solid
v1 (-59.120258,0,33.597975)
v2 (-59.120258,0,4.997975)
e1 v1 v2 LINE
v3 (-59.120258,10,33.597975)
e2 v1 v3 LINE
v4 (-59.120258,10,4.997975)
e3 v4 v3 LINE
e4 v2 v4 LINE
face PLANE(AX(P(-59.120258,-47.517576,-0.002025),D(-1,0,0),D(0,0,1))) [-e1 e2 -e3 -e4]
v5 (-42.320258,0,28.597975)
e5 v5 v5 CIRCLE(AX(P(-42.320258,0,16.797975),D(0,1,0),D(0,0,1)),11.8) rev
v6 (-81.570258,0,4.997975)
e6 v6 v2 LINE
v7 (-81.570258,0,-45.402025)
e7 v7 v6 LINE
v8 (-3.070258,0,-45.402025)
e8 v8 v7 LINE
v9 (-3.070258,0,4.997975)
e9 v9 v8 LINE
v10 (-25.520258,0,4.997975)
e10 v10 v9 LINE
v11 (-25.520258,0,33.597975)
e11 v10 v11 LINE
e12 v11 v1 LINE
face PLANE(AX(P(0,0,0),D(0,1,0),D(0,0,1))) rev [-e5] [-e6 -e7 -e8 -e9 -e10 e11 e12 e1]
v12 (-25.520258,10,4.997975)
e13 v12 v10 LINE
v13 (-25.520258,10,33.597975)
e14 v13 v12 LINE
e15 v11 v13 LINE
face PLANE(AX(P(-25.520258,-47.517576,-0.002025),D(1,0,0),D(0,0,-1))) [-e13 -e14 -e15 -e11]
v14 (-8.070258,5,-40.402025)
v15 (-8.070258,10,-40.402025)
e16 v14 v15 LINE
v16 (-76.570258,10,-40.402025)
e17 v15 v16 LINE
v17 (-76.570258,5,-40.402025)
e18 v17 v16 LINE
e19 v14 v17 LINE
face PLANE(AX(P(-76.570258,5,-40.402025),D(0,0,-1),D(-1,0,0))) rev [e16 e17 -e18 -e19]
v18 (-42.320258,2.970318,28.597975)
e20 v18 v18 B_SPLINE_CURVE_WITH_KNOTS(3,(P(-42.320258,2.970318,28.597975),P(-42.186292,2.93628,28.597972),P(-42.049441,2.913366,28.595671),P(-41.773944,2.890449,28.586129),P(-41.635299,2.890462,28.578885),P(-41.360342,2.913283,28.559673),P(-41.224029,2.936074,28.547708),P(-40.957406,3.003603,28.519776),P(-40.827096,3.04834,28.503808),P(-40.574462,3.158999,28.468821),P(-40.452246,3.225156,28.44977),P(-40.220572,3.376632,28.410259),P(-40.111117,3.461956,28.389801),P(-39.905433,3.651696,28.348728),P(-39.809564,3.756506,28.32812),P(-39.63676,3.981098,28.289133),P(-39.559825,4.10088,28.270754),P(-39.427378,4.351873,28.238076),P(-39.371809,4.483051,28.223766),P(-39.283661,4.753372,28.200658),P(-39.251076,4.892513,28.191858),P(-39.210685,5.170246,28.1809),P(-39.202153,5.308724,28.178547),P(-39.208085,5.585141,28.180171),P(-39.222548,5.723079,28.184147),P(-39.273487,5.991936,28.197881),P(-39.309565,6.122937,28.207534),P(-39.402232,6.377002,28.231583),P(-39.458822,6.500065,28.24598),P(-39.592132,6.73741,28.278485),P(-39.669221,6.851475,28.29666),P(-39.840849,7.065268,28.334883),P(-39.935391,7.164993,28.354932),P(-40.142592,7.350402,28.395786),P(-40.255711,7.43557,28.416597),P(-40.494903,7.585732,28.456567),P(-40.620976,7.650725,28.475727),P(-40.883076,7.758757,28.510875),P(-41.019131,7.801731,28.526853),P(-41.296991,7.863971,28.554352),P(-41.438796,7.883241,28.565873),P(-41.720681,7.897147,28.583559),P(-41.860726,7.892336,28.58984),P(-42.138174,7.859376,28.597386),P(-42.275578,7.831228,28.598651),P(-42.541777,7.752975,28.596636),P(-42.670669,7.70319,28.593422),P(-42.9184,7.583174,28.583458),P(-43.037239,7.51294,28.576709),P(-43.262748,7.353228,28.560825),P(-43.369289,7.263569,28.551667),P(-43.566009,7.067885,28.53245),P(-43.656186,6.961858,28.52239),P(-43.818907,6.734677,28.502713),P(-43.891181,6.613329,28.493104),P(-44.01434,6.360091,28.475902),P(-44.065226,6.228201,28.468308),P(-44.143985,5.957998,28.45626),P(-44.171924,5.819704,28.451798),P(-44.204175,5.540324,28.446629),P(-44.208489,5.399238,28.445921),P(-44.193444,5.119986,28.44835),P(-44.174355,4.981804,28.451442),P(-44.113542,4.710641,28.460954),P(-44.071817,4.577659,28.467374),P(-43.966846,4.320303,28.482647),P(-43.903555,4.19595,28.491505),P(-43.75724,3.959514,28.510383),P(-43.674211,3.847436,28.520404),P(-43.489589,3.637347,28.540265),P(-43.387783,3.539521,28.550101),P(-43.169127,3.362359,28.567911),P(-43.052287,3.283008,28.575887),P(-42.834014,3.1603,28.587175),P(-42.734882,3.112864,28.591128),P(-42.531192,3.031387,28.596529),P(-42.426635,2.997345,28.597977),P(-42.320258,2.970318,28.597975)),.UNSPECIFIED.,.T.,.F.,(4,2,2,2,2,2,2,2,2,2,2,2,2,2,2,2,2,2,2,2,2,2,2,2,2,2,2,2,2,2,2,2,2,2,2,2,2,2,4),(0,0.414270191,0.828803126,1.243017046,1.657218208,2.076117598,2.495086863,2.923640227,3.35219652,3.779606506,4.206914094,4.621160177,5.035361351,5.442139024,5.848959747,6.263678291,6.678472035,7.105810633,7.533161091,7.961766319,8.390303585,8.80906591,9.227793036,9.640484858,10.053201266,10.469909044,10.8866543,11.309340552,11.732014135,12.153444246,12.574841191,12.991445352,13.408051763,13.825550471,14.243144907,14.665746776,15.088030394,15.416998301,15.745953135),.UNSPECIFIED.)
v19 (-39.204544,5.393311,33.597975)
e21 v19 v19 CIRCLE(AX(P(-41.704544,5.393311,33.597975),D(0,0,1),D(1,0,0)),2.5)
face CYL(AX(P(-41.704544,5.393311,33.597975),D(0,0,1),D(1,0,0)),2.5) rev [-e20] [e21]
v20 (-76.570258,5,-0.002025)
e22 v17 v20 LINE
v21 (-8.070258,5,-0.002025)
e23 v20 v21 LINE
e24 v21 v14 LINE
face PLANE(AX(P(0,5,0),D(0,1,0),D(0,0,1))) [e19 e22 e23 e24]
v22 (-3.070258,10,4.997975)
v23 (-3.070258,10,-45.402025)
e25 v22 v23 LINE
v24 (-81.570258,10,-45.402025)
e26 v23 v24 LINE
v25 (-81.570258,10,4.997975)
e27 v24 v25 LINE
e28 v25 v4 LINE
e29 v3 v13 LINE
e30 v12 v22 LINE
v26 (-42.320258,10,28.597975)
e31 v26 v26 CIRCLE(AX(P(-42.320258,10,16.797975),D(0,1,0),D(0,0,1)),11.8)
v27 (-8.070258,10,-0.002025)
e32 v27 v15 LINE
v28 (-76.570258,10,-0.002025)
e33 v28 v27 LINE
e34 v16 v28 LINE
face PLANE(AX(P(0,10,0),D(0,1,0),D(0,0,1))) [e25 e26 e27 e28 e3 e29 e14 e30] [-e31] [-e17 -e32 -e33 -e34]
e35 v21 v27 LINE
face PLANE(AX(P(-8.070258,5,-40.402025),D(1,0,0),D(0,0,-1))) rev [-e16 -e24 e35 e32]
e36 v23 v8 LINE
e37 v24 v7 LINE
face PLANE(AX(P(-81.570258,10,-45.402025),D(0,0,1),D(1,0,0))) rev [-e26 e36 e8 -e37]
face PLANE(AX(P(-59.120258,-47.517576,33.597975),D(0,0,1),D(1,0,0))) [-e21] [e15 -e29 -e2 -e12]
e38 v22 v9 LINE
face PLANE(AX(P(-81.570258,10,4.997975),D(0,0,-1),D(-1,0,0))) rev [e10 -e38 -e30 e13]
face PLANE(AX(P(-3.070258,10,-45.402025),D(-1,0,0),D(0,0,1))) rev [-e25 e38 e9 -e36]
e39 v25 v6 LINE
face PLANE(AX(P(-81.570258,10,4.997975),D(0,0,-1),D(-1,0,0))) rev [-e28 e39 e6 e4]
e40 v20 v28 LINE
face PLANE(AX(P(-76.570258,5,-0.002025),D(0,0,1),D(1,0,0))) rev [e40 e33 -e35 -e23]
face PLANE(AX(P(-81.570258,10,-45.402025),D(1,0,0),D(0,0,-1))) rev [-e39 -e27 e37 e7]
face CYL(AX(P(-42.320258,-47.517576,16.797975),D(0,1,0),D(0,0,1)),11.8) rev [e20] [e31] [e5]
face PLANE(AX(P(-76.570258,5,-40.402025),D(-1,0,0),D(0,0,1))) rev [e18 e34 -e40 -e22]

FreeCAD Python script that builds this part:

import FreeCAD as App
import Part
import Sketcher

V = App.Vector

doc = App.newDocument("Part")
params = doc.addObject("Spreadsheet::Sheet", "Params")
for row, (alias, value) in enumerate([
    ("sketch1_width", "78.5 mm"),
    ("sketch1_height", "50.4 mm"),
    ("pad1_length", "10 mm"),
    ("sketch2_width", "68.5 mm"),
    ("sketch2_height", "40.4 mm"),
    ("pocket1_length", "5 mm"),
    ("sketch3_diameter", "23.6 mm"),
    ("sketch3_width", "33.6 mm"),
    ("pad2_length", "10 mm"),
    ("sketch4_diameter", "5 mm"),
], start=1):
    params.set(f"A{row}", alias)
    params.set(f"B{row}", "=" + value)
    params.setAlias(f"B{row}", alias)

body = doc.addObject("PartDesign::Body", "Body")

sketch1 = body.newObject("Sketcher::SketchObject", "Sketch")
sketch1.AttachmentSupport = (doc.getObject("XZ_Plane"), [""])
sketch1.MapMode = "FlatFace"
sketch1.addGeometry(Part.LineSegment(V(-82, -45, 0), V(-82, 5, 0)), False)
sketch1.addGeometry(Part.LineSegment(V(-82, 5, 0), V(-3, 5, 0)), False)
sketch1.addGeometry(Part.LineSegment(V(-3, 5, 0), V(-3, -45, 0)), False)
sketch1.addGeometry(Part.LineSegment(V(-3, -45, 0), V(-82, -45, 0)), False)
sketch1.addConstraint(Sketcher.Constraint("Coincident", 0, 2, 1, 1))
sketch1.addConstraint(Sketcher.Constraint("Coincident", 1, 2, 2, 1))
sketch1.addConstraint(Sketcher.Constraint("Coincident", 2, 2, 3, 1))
sketch1.addConstraint(Sketcher.Constraint("Coincident", 3, 2, 0, 1))
sketch1.addConstraint(Sketcher.Constraint("Vertical", 0))
sketch1.addConstraint(Sketcher.Constraint("Horizontal", 1))
sketch1.addConstraint(Sketcher.Constraint("Vertical", 2))
sketch1.addConstraint(Sketcher.Constraint("Horizontal", 3))
sketch1.addConstraint(Sketcher.Constraint("DistanceX", 1, 1, 1, 2, 78.5))
sketch1.addConstraint(Sketcher.Constraint("DistanceY", 0, 1, 0, 2, 50.4))
sketch1.addConstraint(Sketcher.Constraint("DistanceX", 0, 2, -1, 1, 81.570258))
sketch1.addConstraint(Sketcher.Constraint("DistanceY", -1, 1, 0, 2, 4.997975))
sketch1.setExpression("Constraints[8]", "Params.sketch1_width")
sketch1.setExpression("Constraints[9]", "Params.sketch1_height")
pad1 = body.newObject("PartDesign::Pad", "Pad")
pad1.Profile = sketch1
pad1.setExpression("Length", "Params.pad1_length")
pad1.Reversed = True

sketch2 = body.newObject("Sketcher::SketchObject", "Sketch001")
sketch2.AttachmentSupport = (doc.getObject("XZ_Plane"), [""])
sketch2.MapMode = "FlatFace"
sketch2.AttachmentOffset = App.Placement(V(0, 0, -10), App.Rotation())
sketch2.addGeometry(Part.LineSegment(V(-77, -40, 0), V(-77, 0, 0)), False)
sketch2.addGeometry(Part.LineSegment(V(-77, 0, 0), V(-8, 0, 0)), False)
sketch2.addGeometry(Part.LineSegment(V(-8, 0, 0), V(-8, -40, 0)), False)
sketch2.addGeometry(Part.LineSegment(V(-8, -40, 0), V(-77, -40, 0)), False)
sketch2.addConstraint(Sketcher.Constraint("Coincident", 0, 2, 1, 1))
sketch2.addConstraint(Sketcher.Constraint("Coincident", 1, 2, 2, 1))
sketch2.addConstraint(Sketcher.Constraint("Coincident", 2, 2, 3, 1))
sketch2.addConstraint(Sketcher.Constraint("Coincident", 3, 2, 0, 1))
sketch2.addConstraint(Sketcher.Constraint("Vertical", 0))
sketch2.addConstraint(Sketcher.Constraint("Horizontal", 1))
sketch2.addConstraint(Sketcher.Constraint("Vertical", 2))
sketch2.addConstraint(Sketcher.Constraint("Horizontal", 3))
sketch2.addConstraint(Sketcher.Constraint("DistanceX", 1, 1, 1, 2, 68.5))
sketch2.addConstraint(Sketcher.Constraint("DistanceY", 0, 1, 0, 2, 40.4))
sketch2.addConstraint(Sketcher.Constraint("DistanceX", 0, 2, -1, 1, 76.570258))
sketch2.addConstraint(Sketcher.Constraint("DistanceY", 0, 2, -1, 1, 0.002025))
sketch2.setExpression("Constraints[8]", "Params.sketch2_width")
sketch2.setExpression("Constraints[9]", "Params.sketch2_height")
pocket1 = body.newObject("PartDesign::Pocket", "Pocket")
pocket1.Profile = sketch2
pocket1.setExpression("Length", "Params.pocket1_length")
pocket1.Reversed = True

sketch3 = body.newObject("Sketcher::SketchObject", "Sketch002")
sketch3.AttachmentSupport = (doc.getObject("XZ_Plane"), [""])
sketch3.MapMode = "FlatFace"
sketch3.AttachmentOffset = App.Placement(V(0, 0, -10), App.Rotation())
sketch3.addGeometry(Part.LineSegment(V(-59, 0, 0), V(-59, 34, 0)), False)
sketch3.addGeometry(Part.LineSegment(V(-59, 34, 0), V(-26, 34, 0)), False)
sketch3.addGeometry(Part.LineSegment(V(-26, 34, 0), V(-26, 0, 0)), False)
sketch3.addGeometry(Part.LineSegment(V(-26, 0, 0), V(-59, 0, 0)), False)
sketch3.addGeometry(Part.Circle(V(-42, 17, 0), V(0, 0, 1), 12), False)
sketch3.addConstraint(Sketcher.Constraint("Coincident", 0, 2, 1, 1))
sketch3.addConstraint(Sketcher.Constraint("Coincident", 1, 2, 2, 1))
sketch3.addConstraint(Sketcher.Constraint("Coincident", 2, 2, 3, 1))
sketch3.addConstraint(Sketcher.Constraint("Coincident", 3, 2, 0, 1))
sketch3.addConstraint(Sketcher.Constraint("Vertical", 0))
sketch3.addConstraint(Sketcher.Constraint("Horizontal", 1))
sketch3.addConstraint(Sketcher.Constraint("Vertical", 2))
sketch3.addConstraint(Sketcher.Constraint("Horizontal", 3))
sketch3.addConstraint(Sketcher.Constraint("Equal", 3, 0))
sketch3.addConstraint(Sketcher.Constraint("Diameter", 4, 23.6))
sketch3.addConstraint(Sketcher.Constraint("DistanceX", 1, 1, 1, 2, 33.6))
sketch3.addConstraint(Sketcher.Constraint("DistanceX", 0, 2, 4, 3, 16.8))
sketch3.addConstraint(Sketcher.Constraint("DistanceY", 4, 3, 0, 2, 16.8))
sketch3.addConstraint(Sketcher.Constraint("DistanceX", 4, 3, -1, 1, 42.320258))
sketch3.addConstraint(Sketcher.Constraint("DistanceY", -1, 1, 4, 3, 16.797975))
sketch3.setExpression("Constraints[9]", "Params.sketch3_diameter")
sketch3.setExpression("Constraints[10]", "Params.sketch3_width")
pad2 = body.newObject("PartDesign::Pad", "Pad001")
pad2.Profile = sketch3
pad2.setExpression("Length", "Params.pad2_length")

sketch4 = body.newObject("Sketcher::SketchObject", "Sketch003")
sketch4.AttachmentSupport = (doc.getObject("XY_Plane"), [""])
sketch4.MapMode = "FlatFace"
sketch4.AttachmentOffset = App.Placement(V(0, 0, 33.597975), App.Rotation())
sketch4.addGeometry(Part.Circle(V(-41.7, 5.4, 0), V(0, 0, 1), 2.5), False)
sketch4.addConstraint(Sketcher.Constraint("Diameter", 0, 5.0))
sketch4.addConstraint(Sketcher.Constraint("DistanceY", -1, 1, 0, 3, 5.393311))
sketch4.addConstraint(Sketcher.Constraint("DistanceX", 0, 3, -1, 1, 41.704544))
sketch4.setExpression("Constraints[0]", "Params.sketch4_diameter")
pocket2 = body.newObject("PartDesign::Pocket", "Pocket001")
pocket2.Profile = sketch4
pocket2.Type = "UpToFirst"

doc.recompute()
